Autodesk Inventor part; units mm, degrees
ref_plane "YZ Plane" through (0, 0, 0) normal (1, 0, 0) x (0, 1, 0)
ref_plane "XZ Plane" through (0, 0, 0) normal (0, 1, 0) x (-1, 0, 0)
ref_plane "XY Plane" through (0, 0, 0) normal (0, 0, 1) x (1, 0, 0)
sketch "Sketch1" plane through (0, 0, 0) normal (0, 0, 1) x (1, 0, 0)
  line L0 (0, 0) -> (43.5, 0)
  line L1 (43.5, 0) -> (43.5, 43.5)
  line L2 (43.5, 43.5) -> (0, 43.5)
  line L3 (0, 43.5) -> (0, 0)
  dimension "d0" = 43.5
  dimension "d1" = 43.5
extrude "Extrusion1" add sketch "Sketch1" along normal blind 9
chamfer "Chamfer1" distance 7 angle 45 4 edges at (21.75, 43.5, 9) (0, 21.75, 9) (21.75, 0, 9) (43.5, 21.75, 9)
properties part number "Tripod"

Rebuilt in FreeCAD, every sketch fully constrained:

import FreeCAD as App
import Part
import Sketcher


def edges_at(feature, points):
    """Names of the edges that pass closest to the given points."""
    edges = feature.Shape.Edges
    near = lambda p: min(range(len(edges)), key=lambda i: edges[i].distToShape(Part.Vertex(*p))[0])
    return sorted({f"Edge{near(p) + 1}" for p in points})


def add_polygon(sketch, points):
    """Adds a closed chain of lines whose ends are joined by coincident constraints."""
    first, n = sketch.GeometryCount, len(points)
    for a, b in zip(points, points[1:] + points[:1]):
        sketch.addGeometry(Part.LineSegment(App.Vector(*a, 0), App.Vector(*b, 0)), False)
    for i in range(n):
        sketch.addConstraint(Sketcher.Constraint("Coincident", first + i, 2, first + (i + 1) % n, 1))

doc = App.newDocument("Part")
body = doc.addObject("PartDesign::Body", "Body")

sketch1 = body.newObject("Sketcher::SketchObject", "Sketch")
sketch1.AttachmentSupport = (doc.getObject("XY_Plane"), [""])
sketch1.MapMode = "FlatFace"
add_polygon(sketch1, [(0, 43.5), (0, 0), (43.5, 0), (43.5, 43.5)])
sketch1.addConstraint([
    Sketcher.Constraint("Vertical", 0),
    Sketcher.Constraint("Horizontal", 1),
    Sketcher.Constraint("Vertical", 2),
    Sketcher.Constraint("Horizontal", 3),
    Sketcher.Constraint("Coincident", 0, 2, -1, 1),
    Sketcher.Constraint("Equal", 3, 0),
    Sketcher.Constraint("DistanceX", 1, 1, 1, 2, 43.5),
])
pad1 = body.newObject("PartDesign::Pad", "Pad")
pad1.Profile = sketch1
pad1.Length = 9
doc.recompute()

chamfer = body.newObject("PartDesign::Chamfer", "Chamfer")
chamfer.Base = (pad1, edges_at(pad1, [
    (21.75, 43.5, 9),
    (0, 21.75, 9),
    (21.75, 0, 9),
    (43.5, 21.75, 9),
]))
chamfer.Size = 7

doc.recompute()
